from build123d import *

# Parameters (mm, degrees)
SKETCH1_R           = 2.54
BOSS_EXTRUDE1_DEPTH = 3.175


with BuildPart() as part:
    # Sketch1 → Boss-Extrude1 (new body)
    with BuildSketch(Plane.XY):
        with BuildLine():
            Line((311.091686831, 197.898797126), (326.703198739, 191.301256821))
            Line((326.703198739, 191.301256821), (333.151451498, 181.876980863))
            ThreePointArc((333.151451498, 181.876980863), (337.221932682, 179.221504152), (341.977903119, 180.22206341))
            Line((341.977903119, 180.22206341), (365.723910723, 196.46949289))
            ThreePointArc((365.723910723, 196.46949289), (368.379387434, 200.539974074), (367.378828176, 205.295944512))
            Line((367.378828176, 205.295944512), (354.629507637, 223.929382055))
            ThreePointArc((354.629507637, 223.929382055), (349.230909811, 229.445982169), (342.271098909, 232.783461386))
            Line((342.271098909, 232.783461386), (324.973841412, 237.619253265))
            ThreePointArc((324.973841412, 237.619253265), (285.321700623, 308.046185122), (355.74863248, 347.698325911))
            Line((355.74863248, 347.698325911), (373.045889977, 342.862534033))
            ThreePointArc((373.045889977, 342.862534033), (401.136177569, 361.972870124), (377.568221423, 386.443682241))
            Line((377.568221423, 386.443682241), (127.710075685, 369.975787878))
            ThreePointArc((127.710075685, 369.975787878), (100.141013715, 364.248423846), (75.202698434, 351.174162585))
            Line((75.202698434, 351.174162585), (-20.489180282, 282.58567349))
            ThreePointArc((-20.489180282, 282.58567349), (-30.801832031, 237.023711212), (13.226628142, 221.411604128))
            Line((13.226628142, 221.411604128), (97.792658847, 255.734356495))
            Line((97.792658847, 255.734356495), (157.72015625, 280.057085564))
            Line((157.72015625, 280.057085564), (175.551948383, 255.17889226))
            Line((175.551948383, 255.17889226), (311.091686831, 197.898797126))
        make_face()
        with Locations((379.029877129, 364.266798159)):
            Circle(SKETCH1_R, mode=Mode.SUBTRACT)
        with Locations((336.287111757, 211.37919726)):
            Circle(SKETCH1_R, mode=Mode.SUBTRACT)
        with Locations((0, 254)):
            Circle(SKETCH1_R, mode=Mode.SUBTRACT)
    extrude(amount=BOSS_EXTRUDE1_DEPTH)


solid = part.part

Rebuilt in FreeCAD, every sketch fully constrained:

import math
import FreeCAD as App
import Part
import Sketcher
from FreeCAD import Vector
Q = App.Units.Quantity

doc = App.newDocument("Part")
params = doc.addObject("Spreadsheet::Sheet", "Params")
for row, (alias, value) in enumerate([
    ("sketch1_radius", "4 in"),
    ("sketch1_diameter", "0.2 in"),
    ("sketch1_radius2", "0.25 in"),
    ("sketch1_radius3", "2.25 in"),
    ("sketch1_radius4", "0.875 in"),
    ("pad1_length", "0.125 in"),
], start=1):
    params.set(f"A{row}", alias)
    params.set(f"B{row}", "=" + value)
    params.setAlias(f"B{row}", alias)

body = doc.addObject("PartDesign::Body", "Body")

# Sketch on XY plane
sketch1 = body.newObject("Sketcher::SketchObject", "Sketch")
sketch1.AttachmentSupport = (doc.getObject("XY_Plane"), [""])
sketch1.MapMode = "FlatFace"
sketch1.addGeometry([
    Part.LineSegment(Vector(311.091687, 197.898797, 0), Vector(326.703199, 191.301257, 0)),  # 0
    Part.LineSegment(Vector(326.703199, 191.301257, 0), Vector(333.151451, 181.876981, 0)),  # 1
    Part.ArcOfCircle(Part.Circle(Vector(338.392136, 185.462748, 0), Vector(0, 0, 1), 6.35), math.radians(-145.61939), math.radians(-55.61939)),  # 2
    Part.LineSegment(Vector(341.977903, 180.222063, 0), Vector(365.723911, 196.469493, 0)),  # 3
    Part.ArcOfCircle(Part.Circle(Vector(362.138144, 201.710177, 0), Vector(0, 0, 1), 6.35), math.radians(-55.61939), math.radians(34.38061)),  # 4
    Part.LineSegment(Vector(367.378828, 205.295945, 0), Vector(354.629508, 223.929382, 0)),  # 5
    Part.ArcOfCircle(Part.Circle(Vector(336.287112, 211.379197, 0), Vector(0, 0, 1), 22.225), math.radians(34.38061), math.radians(74.38061)),  # 6
    Part.LineSegment(Vector(342.271099, 232.783461, 0), Vector(324.973841, 237.619253, 0)),  # 7
    Part.ArcOfCircle(Part.Circle(Vector(340.361237, 292.65879, 0), Vector(0, 0, 1), 57.15), math.radians(74.38061), math.radians(254.38061)),  # 8
    Part.LineSegment(Vector(355.748632, 347.698326, 0), Vector(373.04589, 342.862534, 0)),  # 9
    Part.ArcOfCircle(Part.Circle(Vector(379.029877, 364.266798, 0), Vector(0, 0, 1), 22.225), math.radians(-105.61939), math.radians(93.770852)),  # 10
    Part.LineSegment(Vector(377.568221, 386.443682, 0), Vector(127.710076, 369.975788, 0)),  # 11
    Part.ArcOfCircle(Part.Circle(Vector(134.39193, 268.595746, 0), Vector(0, 0, 1), 101.6), math.radians(93.770852), math.radians(125.63159)),  # 12
    Part.LineSegment(Vector(75.202698, 351.174163, 0), Vector(-20.48918, 282.585673, 0)),  # 13
    Part.ArcOfCircle(Part.Circle(Vector(0, 254, 0), Vector(0, 0, 1), 35.170261), math.radians(125.63159), math.radians(292.090721)),  # 14
    Part.LineSegment(Vector(13.226628, 221.411604, 0), Vector(97.792659, 255.734356, 0)),  # 15
    Part.LineSegment(Vector(97.792659, 255.734356, 0), Vector(157.720156, 280.057086, 0)),  # 16
    Part.LineSegment(Vector(157.720156, 280.057086, 0), Vector(175.551948, 255.178892, 0)),  # 17
    Part.LineSegment(Vector(175.551948, 255.178892, 0), Vector(311.091687, 197.898797, 0)),  # 18
    Part.Circle(Vector(0, 254, 0), Vector(0, 0, 1), 2.54),  # 19
    Part.Circle(Vector(336.287112, 211.379197, 0), Vector(0, 0, 1), 2.54),  # 20
    Part.Circle(Vector(379.029877, 364.266798, 0), Vector(0, 0, 1), 2.54),  # 21
], False)
sketch1.addConstraint([
    Sketcher.Constraint("Coincident", 0, 2, 1, 1),
    Sketcher.Constraint("Tangent", 1, 2, 2, 1),
    Sketcher.Constraint("Tangent", 2, 2, 3, 1),
    Sketcher.Constraint("Tangent", 3, 2, 4, 1),
    Sketcher.Constraint("Tangent", 4, 2, 5, 1),
    Sketcher.Constraint("Tangent", 5, 2, 6, 1),
    Sketcher.Constraint("Tangent", 6, 2, 7, 1),
    Sketcher.Constraint("Tangent", 7, 2, 8, 2),
    Sketcher.Constraint("Tangent", 8, 1, 9, 1),
    Sketcher.Constraint("Tangent", 9, 2, 10, 1),
    Sketcher.Constraint("Tangent", 10, 2, 11, 1),
    Sketcher.Constraint("Tangent", 11, 2, 12, 1),
    Sketcher.Constraint("Tangent", 12, 2, 13, 1),
    Sketcher.Constraint("Tangent", 13, 2, 14, 1),
    Sketcher.Constraint("Tangent", 14, 2, 15, 1),
    Sketcher.Constraint("Coincident", 15, 2, 16, 1),
    Sketcher.Constraint("Coincident", 16, 2, 17, 1),
    Sketcher.Constraint("Coincident", 17, 2, 18, 1),
    Sketcher.Constraint("Coincident", 18, 2, 0, 1),
    Sketcher.Constraint("Coincident", 19, 3, 14, 3),
    Sketcher.Constraint("Coincident", 20, 3, 6, 3),
    Sketcher.Constraint("Coincident", 21, 3, 10, 3),
    Sketcher.Constraint("Equal", 2, 4),
    Sketcher.Constraint("Equal", 6, 10),
    Sketcher.Constraint("Equal", 19, 20),
    Sketcher.Constraint("Equal", 20, 21),
    Sketcher.Constraint("PointOnObject", 14, 3, -2),
    Sketcher.Constraint("Perpendicular", 1, 3),
    Sketcher.Constraint("Perpendicular", 3, 5),
    Sketcher.Constraint("Parallel", 7, 9),
    Sketcher.Constraint("Parallel", 15, 16),
    Sketcher.Constraint("Perpendicular", 13, 17),
    Sketcher.Constraint("Parallel", 0, 18),
    Sketcher.Constraint("Equal", 7, 9),
    Sketcher.Constraint("Radius", 12, Q("4 in")),
    Sketcher.Constraint("Diameter", 19, Q("0.2 in")),
    Sketcher.Constraint("Radius", 2, Q("0.25 in")),
    Sketcher.Constraint("Radius", 8, Q("2.25 in")),
    Sketcher.Constraint("DistanceY", -1, 1, 14, 3, Q("10 in")),
    Sketcher.Constraint("Radius", 6, Q("0.875 in")),
    Sketcher.Constraint("Radius", 14, 35.170261),
    Sketcher.Constraint("DistanceY", 0, 2, 4, 3, Q("0.4098 in")),
    Sketcher.Constraint("DistanceY", 4, 2, 5, 2, Q("0.7335999 in")),
    Sketcher.Constraint("DistanceY", -1, 1, 10, 3, 364.266798),
    Sketcher.Constraint("DistanceX", -1, 1, 0, 2, 326.703199),
    Sketcher.Constraint("DistanceX", -1, 1, 6, 2, 342.271099),
    Sketcher.Constraint("DistanceX", -1, 1, 12, 2, 75.202698),
    Sketcher.Constraint("DistanceX", 2, 3, 8, 3, 1.969101),
    Sketcher.Constraint("DistanceY", 6, 3, 10, 3, 152.887601),
    Sketcher.Constraint("DistanceY", 2, 3, 12, 3, 83.132998),
    Sketcher.Constraint("DistanceX", 20, 3, 3, 2, 29.436799),
    Sketcher.Constraint("DistanceY", 18, 2, 20, 3, 13.4804),
    Sketcher.Constraint("Distance", 0, 16.948358),
    Sketcher.Constraint("Distance", 17, 30.608778),
    Sketcher.Constraint("DistanceX", -1, 1, 14, 2, 13.226628),
    Sketcher.Constraint("DistanceX", -1, 1, 15, 2, 97.792659),
])
sketch1.setExpression("Constraints[34]", "Params.sketch1_radius")
sketch1.setExpression("Constraints[35]", "Params.sketch1_diameter")
sketch1.setExpression("Constraints[36]", "Params.sketch1_radius2")
sketch1.setExpression("Constraints[37]", "Params.sketch1_radius3")
sketch1.setExpression("Constraints[39]", "Params.sketch1_radius4")
pad1 = body.newObject("PartDesign::Pad", "Pad")
pad1.Profile = sketch1
pad1.setExpression("Length", "Params.pad1_length")

doc.recompute()
